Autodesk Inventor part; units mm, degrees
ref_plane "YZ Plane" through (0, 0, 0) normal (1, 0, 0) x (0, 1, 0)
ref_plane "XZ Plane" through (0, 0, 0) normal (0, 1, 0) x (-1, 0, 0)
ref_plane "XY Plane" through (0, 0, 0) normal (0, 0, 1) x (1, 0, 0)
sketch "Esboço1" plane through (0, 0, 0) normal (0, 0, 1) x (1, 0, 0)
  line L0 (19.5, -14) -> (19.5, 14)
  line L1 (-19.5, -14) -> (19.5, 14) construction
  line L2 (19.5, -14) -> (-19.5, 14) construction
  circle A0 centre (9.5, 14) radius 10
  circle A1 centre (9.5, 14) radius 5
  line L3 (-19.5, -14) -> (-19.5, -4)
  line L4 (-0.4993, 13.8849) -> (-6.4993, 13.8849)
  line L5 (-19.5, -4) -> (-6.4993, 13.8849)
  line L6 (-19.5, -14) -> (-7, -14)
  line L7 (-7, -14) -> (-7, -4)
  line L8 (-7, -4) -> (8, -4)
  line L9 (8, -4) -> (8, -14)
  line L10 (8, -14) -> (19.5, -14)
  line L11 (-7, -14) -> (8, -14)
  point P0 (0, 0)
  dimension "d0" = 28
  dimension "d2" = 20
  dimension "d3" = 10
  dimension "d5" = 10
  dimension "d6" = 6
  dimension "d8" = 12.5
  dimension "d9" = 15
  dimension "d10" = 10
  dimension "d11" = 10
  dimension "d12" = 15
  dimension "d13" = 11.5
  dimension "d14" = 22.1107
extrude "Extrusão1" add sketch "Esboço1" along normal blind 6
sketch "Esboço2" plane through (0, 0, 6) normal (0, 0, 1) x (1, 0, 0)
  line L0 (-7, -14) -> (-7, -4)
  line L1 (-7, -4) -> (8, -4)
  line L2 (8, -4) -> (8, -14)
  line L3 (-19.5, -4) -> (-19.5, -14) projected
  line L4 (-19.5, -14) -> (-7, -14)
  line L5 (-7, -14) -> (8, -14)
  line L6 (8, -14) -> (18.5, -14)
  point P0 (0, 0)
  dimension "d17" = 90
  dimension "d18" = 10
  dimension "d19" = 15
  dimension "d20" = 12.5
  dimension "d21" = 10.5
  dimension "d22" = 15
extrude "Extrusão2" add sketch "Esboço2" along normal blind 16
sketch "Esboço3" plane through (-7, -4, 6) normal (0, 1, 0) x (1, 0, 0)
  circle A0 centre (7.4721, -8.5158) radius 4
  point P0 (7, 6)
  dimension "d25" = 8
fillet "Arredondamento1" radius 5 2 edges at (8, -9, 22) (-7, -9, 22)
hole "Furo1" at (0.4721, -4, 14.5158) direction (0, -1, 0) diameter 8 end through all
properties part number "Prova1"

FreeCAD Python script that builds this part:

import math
import FreeCAD as App
import Part
import Sketcher


def edges_at(feature, points):
    """Names of the edges that pass closest to the given points."""
    edges = feature.Shape.Edges
    near = lambda p: min(range(len(edges)), key=lambda i: edges[i].distToShape(Part.Vertex(*p))[0])
    return sorted({f"Edge{near(p) + 1}" for p in points})


def add_polygon(sketch, points):
    """Adds a closed chain of lines whose ends are joined by coincident constraints."""
    first, n = sketch.GeometryCount, len(points)
    for a, b in zip(points, points[1:] + points[:1]):
        sketch.addGeometry(Part.LineSegment(App.Vector(*a, 0), App.Vector(*b, 0)), False)
    for i in range(n):
        sketch.addConstraint(Sketcher.Constraint("Coincident", first + i, 2, first + (i + 1) % n, 1))

doc = App.newDocument("Part")
body = doc.addObject("PartDesign::Body", "Body")

# Sketch on XY plane
sketch1 = body.newObject("Sketcher::SketchObject", "Sketch")
sketch1.AttachmentSupport = (doc.getObject("XY_Plane"), [""])
sketch1.MapMode = "FlatFace"
sketch1.addGeometry([
    Part.LineSegment(App.Vector(19.5, -14, 0), App.Vector(19.5, 14, 0)),  # 0
    Part.ArcOfCircle(Part.Circle(App.Vector(9.5, 14, 0), App.Vector(0, 0, 1), 10), math.radians(0), math.radians(180.659491)),  # 1
    Part.LineSegment(App.Vector(-0.4993, 13.8849, 0), App.Vector(-6.4993, 13.8849, 0)),  # 2
    Part.LineSegment(App.Vector(-6.4993, 13.8849, 0), App.Vector(-19.5, -4, 0)),  # 3
    Part.LineSegment(App.Vector(-19.5, -4, 0), App.Vector(-19.5, -14, 0)),  # 4
    Part.LineSegment(App.Vector(-19.5, -14, 0), App.Vector(19.5, -14, 0)),  # 5
    Part.Circle(App.Vector(9.5, 14, 0), App.Vector(0, 0, 1), 5),  # 6
], False)
sketch1.addConstraint([
    Sketcher.Constraint("Tangent", 0, 2, 1, 1),
    Sketcher.Constraint("Coincident", 1, 2, 2, 1),
    Sketcher.Constraint("Coincident", 2, 2, 3, 1),
    Sketcher.Constraint("Coincident", 3, 2, 4, 1),
    Sketcher.Constraint("Coincident", 4, 2, 5, 1),
    Sketcher.Constraint("Coincident", 5, 2, 0, 1),
    Sketcher.Constraint("Vertical", 0),
    Sketcher.Constraint("Horizontal", 2),
    Sketcher.Constraint("Vertical", 4),
    Sketcher.Constraint("Horizontal", 5),
    Sketcher.Constraint("Coincident", 6, 3, 1, 3),
    Sketcher.Constraint("Symmetric", 0, 2, 4, 2, -1, 1),
    Sketcher.Constraint("Diameter", 6, 10.0),
    Sketcher.Constraint("Radius", 1, 10.0),
    Sketcher.Constraint("DistanceX", 2, 2, 2, 1, 6.0),
    Sketcher.Constraint("DistanceY", 0, 1, 0, 2, 28.0),
    Sketcher.Constraint("DistanceY", 4, 2, 4, 1, 10.0),
    Sketcher.Constraint("DistanceX", 5, 1, 5, 2, 39.0),
    Sketcher.Constraint("Distance", 3, 22.1108),
])
pad1 = body.newObject("PartDesign::Pad", "Pad")
pad1.Profile = sketch1
pad1.Length = 6

# Sketch on XY plane
sketch2 = body.newObject("Sketcher::SketchObject", "Sketch001")
sketch2.AttachmentSupport = (doc.getObject("XY_Plane"), [""])
sketch2.MapMode = "FlatFace"
sketch2.AttachmentOffset = App.Placement(App.Vector(0, 0, 6), App.Rotation())
add_polygon(sketch2, [(-7, -4), (-7, -14), (8, -14), (8, -4)])  # lines 0-3
sketch2.addConstraint([
    Sketcher.Constraint("Vertical", 0),
    Sketcher.Constraint("Horizontal", 1),
    Sketcher.Constraint("Vertical", 2),
    Sketcher.Constraint("Horizontal", 3),
    Sketcher.Constraint("DistanceX", 1, 1, 1, 2, 15.0),
    Sketcher.Constraint("DistanceY", 0, 2, 0, 1, 10.0),
    Sketcher.Constraint("DistanceX", 0, 2, -1, 1, 7.0),
    Sketcher.Constraint("DistanceY", 0, 2, -1, 1, 14.0),
])
pad2 = body.newObject("PartDesign::Pad", "Pad001")
pad2.Profile = sketch2
pad2.Length = 16
doc.recompute()

fillet = body.newObject("PartDesign::Fillet", "Fillet")
fillet.Base = (pad2, edges_at(pad2, [(8, -9, 22), (-7, -9, 22)]))
fillet.Radius = 5

# Sketch on XZ plane
sketch3 = body.newObject("Sketcher::SketchObject", "Sketch002")
sketch3.AttachmentSupport = (doc.getObject("XZ_Plane"), [""])
sketch3.MapMode = "FlatFace"
sketch3.AttachmentOffset = App.Placement(App.Vector(0, 0, 4), App.Rotation())
sketch3.addGeometry(Part.Circle(App.Vector(0.4721, 14.5158, 0), App.Vector(0, 0, 1), 4), False)
sketch3.addConstraint([
    Sketcher.Constraint("Diameter", 0, 8.0),
    Sketcher.Constraint("DistanceX", -1, 1, 0, 3, 0.472),
    Sketcher.Constraint("DistanceY", -1, 1, 0, 3, 14.5158),
])
doc.recompute()
hole = body.newObject("PartDesign::Hole", "Hole")
hole.Profile = sketch3
hole.ThreadType = "None"
hole.Diameter = 8
hole.DepthType = "ThroughAll"
hole.Reversed = True

doc.recompute()
